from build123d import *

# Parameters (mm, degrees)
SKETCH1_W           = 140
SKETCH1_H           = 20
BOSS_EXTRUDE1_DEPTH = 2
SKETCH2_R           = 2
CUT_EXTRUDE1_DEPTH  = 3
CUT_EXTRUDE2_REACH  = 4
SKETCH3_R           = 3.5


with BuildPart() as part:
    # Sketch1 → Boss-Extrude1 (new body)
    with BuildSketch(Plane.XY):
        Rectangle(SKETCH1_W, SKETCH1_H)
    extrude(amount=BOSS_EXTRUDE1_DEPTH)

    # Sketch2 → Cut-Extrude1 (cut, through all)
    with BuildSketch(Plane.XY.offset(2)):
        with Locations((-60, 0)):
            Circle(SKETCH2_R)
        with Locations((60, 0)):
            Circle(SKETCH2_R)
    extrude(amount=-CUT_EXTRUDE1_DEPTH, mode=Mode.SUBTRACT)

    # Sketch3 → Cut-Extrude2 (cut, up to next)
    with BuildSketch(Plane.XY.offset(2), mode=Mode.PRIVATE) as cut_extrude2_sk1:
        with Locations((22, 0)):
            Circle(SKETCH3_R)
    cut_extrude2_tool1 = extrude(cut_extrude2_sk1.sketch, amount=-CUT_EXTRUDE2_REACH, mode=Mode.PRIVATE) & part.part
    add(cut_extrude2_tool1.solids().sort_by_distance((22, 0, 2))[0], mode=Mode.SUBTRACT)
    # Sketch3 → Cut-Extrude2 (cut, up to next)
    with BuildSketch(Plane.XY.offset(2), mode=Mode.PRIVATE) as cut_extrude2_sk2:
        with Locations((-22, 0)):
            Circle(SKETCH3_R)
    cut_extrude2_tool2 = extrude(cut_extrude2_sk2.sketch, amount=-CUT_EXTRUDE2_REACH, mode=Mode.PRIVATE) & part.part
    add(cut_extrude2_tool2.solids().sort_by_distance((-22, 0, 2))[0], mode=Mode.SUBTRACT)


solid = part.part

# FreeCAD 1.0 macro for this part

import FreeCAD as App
import Part
import Sketcher

V = App.Vector
Q = App.Units.Quantity

doc = App.newDocument("Part")
body = doc.addObject("PartDesign::Body", "Body")

# Sketch on XY plane
sketch1 = body.newObject("Sketcher::SketchObject", "Sketch")
sketch1.AttachmentSupport = (doc.getObject("XY_Plane"), [""])
sketch1.MapMode = "FlatFace"
sketch1.addGeometry([
    Part.LineSegment(V(-70, 10, 0), V(-70, -10, 0)),
    Part.LineSegment(V(-70, -10, 0), V(70, -10, 0)),
    Part.LineSegment(V(70, -10, 0), V(70, 10, 0)),
    Part.LineSegment(V(70, 10, 0), V(-70, 10, 0)),
], False)
sketch1.addConstraint([
    Sketcher.Constraint("Coincident", 0, 2, 1, 1),
    Sketcher.Constraint("Coincident", 1, 2, 2, 1),
    Sketcher.Constraint("Coincident", 2, 2, 3, 1),
    Sketcher.Constraint("Coincident", 3, 2, 0, 1),
    Sketcher.Constraint("Vertical", 0),
    Sketcher.Constraint("Horizontal", 1),
    Sketcher.Constraint("Vertical", 2),
    Sketcher.Constraint("Horizontal", 3),
    Sketcher.Constraint("Symmetric", 0, 2, 2, 2, -1, 1),
    Sketcher.Constraint("DistanceX", 1, 1, 1, 2, Q("140 mm")),
    Sketcher.Constraint("DistanceY", 0, 2, 0, 1, Q("20 mm")),
])
pad1 = body.newObject("PartDesign::Pad", "Pad")
pad1.Profile = sketch1
pad1.Length = 2

# Sketch on XY plane
sketch2 = body.newObject("Sketcher::SketchObject", "Sketch001")
sketch2.AttachmentSupport = (doc.getObject("XY_Plane"), [""])
sketch2.MapMode = "FlatFace"
sketch2.AttachmentOffset = App.Placement(V(0, 0, 2), App.Rotation())
sketch2.addGeometry([
    Part.Circle(V(-60, 0, 0), V(0, 0, 1), 2),
    Part.Circle(V(60, 0, 0), V(0, 0, 1), 2),
], False)
sketch2.addConstraint([
    Sketcher.Constraint("Equal", 0, 1),
    Sketcher.Constraint("Symmetric", 0, 3, 1, 3, -1, 1),
    Sketcher.Constraint("PointOnObject", 0, 3, -1),
    Sketcher.Constraint("Diameter", 0, Q("4 mm")),
    Sketcher.Constraint("DistanceX", 0, 3, -1, 1, Q("60 mm")),
])
pocket1 = body.newObject("PartDesign::Pocket", "Pocket")
pocket1.Profile = sketch2
pocket1.Type = "ThroughAll"

# Sketch on XY plane
sketch3 = body.newObject("Sketcher::SketchObject", "Sketch002")
sketch3.AttachmentSupport = (doc.getObject("XY_Plane"), [""])
sketch3.MapMode = "FlatFace"
sketch3.AttachmentOffset = App.Placement(V(0, 0, 2), App.Rotation())
sketch3.addGeometry(Part.Circle(V(22, 0, 0), V(0, 0, 1), 3.5), False)
sketch3.addConstraint([
    Sketcher.Constraint("PointOnObject", 0, 3, -1),
    Sketcher.Constraint("Diameter", 0, Q("7 mm")),
    Sketcher.Constraint("DistanceX", -1, 1, 0, 3, Q("22 mm")),
])
pocket2 = body.newObject("PartDesign::Pocket", "Pocket001")
pocket2.Profile = sketch3
pocket2.Type = "UpToFirst"

# Sketch on XY plane
sketch4 = body.newObject("Sketcher::SketchObject", "Sketch003")
sketch4.AttachmentSupport = (doc.getObject("XY_Plane"), [""])
sketch4.MapMode = "FlatFace"
sketch4.AttachmentOffset = App.Placement(V(0, 0, 2), App.Rotation())
sketch4.addGeometry(Part.Circle(V(-22, 0, 0), V(0, 0, 1), 3.5), False)
sketch4.addConstraint([
    Sketcher.Constraint("PointOnObject", 0, 3, -1),
    Sketcher.Constraint("Diameter", 0, Q("7 mm")),
    Sketcher.Constraint("DistanceX", 0, 3, -1, 1, Q("22 mm")),
])
pocket3 = body.newObject("PartDesign::Pocket", "Pocket002")
pocket3.Profile = sketch4
pocket3.Type = "UpToFirst"

doc.recompute()
